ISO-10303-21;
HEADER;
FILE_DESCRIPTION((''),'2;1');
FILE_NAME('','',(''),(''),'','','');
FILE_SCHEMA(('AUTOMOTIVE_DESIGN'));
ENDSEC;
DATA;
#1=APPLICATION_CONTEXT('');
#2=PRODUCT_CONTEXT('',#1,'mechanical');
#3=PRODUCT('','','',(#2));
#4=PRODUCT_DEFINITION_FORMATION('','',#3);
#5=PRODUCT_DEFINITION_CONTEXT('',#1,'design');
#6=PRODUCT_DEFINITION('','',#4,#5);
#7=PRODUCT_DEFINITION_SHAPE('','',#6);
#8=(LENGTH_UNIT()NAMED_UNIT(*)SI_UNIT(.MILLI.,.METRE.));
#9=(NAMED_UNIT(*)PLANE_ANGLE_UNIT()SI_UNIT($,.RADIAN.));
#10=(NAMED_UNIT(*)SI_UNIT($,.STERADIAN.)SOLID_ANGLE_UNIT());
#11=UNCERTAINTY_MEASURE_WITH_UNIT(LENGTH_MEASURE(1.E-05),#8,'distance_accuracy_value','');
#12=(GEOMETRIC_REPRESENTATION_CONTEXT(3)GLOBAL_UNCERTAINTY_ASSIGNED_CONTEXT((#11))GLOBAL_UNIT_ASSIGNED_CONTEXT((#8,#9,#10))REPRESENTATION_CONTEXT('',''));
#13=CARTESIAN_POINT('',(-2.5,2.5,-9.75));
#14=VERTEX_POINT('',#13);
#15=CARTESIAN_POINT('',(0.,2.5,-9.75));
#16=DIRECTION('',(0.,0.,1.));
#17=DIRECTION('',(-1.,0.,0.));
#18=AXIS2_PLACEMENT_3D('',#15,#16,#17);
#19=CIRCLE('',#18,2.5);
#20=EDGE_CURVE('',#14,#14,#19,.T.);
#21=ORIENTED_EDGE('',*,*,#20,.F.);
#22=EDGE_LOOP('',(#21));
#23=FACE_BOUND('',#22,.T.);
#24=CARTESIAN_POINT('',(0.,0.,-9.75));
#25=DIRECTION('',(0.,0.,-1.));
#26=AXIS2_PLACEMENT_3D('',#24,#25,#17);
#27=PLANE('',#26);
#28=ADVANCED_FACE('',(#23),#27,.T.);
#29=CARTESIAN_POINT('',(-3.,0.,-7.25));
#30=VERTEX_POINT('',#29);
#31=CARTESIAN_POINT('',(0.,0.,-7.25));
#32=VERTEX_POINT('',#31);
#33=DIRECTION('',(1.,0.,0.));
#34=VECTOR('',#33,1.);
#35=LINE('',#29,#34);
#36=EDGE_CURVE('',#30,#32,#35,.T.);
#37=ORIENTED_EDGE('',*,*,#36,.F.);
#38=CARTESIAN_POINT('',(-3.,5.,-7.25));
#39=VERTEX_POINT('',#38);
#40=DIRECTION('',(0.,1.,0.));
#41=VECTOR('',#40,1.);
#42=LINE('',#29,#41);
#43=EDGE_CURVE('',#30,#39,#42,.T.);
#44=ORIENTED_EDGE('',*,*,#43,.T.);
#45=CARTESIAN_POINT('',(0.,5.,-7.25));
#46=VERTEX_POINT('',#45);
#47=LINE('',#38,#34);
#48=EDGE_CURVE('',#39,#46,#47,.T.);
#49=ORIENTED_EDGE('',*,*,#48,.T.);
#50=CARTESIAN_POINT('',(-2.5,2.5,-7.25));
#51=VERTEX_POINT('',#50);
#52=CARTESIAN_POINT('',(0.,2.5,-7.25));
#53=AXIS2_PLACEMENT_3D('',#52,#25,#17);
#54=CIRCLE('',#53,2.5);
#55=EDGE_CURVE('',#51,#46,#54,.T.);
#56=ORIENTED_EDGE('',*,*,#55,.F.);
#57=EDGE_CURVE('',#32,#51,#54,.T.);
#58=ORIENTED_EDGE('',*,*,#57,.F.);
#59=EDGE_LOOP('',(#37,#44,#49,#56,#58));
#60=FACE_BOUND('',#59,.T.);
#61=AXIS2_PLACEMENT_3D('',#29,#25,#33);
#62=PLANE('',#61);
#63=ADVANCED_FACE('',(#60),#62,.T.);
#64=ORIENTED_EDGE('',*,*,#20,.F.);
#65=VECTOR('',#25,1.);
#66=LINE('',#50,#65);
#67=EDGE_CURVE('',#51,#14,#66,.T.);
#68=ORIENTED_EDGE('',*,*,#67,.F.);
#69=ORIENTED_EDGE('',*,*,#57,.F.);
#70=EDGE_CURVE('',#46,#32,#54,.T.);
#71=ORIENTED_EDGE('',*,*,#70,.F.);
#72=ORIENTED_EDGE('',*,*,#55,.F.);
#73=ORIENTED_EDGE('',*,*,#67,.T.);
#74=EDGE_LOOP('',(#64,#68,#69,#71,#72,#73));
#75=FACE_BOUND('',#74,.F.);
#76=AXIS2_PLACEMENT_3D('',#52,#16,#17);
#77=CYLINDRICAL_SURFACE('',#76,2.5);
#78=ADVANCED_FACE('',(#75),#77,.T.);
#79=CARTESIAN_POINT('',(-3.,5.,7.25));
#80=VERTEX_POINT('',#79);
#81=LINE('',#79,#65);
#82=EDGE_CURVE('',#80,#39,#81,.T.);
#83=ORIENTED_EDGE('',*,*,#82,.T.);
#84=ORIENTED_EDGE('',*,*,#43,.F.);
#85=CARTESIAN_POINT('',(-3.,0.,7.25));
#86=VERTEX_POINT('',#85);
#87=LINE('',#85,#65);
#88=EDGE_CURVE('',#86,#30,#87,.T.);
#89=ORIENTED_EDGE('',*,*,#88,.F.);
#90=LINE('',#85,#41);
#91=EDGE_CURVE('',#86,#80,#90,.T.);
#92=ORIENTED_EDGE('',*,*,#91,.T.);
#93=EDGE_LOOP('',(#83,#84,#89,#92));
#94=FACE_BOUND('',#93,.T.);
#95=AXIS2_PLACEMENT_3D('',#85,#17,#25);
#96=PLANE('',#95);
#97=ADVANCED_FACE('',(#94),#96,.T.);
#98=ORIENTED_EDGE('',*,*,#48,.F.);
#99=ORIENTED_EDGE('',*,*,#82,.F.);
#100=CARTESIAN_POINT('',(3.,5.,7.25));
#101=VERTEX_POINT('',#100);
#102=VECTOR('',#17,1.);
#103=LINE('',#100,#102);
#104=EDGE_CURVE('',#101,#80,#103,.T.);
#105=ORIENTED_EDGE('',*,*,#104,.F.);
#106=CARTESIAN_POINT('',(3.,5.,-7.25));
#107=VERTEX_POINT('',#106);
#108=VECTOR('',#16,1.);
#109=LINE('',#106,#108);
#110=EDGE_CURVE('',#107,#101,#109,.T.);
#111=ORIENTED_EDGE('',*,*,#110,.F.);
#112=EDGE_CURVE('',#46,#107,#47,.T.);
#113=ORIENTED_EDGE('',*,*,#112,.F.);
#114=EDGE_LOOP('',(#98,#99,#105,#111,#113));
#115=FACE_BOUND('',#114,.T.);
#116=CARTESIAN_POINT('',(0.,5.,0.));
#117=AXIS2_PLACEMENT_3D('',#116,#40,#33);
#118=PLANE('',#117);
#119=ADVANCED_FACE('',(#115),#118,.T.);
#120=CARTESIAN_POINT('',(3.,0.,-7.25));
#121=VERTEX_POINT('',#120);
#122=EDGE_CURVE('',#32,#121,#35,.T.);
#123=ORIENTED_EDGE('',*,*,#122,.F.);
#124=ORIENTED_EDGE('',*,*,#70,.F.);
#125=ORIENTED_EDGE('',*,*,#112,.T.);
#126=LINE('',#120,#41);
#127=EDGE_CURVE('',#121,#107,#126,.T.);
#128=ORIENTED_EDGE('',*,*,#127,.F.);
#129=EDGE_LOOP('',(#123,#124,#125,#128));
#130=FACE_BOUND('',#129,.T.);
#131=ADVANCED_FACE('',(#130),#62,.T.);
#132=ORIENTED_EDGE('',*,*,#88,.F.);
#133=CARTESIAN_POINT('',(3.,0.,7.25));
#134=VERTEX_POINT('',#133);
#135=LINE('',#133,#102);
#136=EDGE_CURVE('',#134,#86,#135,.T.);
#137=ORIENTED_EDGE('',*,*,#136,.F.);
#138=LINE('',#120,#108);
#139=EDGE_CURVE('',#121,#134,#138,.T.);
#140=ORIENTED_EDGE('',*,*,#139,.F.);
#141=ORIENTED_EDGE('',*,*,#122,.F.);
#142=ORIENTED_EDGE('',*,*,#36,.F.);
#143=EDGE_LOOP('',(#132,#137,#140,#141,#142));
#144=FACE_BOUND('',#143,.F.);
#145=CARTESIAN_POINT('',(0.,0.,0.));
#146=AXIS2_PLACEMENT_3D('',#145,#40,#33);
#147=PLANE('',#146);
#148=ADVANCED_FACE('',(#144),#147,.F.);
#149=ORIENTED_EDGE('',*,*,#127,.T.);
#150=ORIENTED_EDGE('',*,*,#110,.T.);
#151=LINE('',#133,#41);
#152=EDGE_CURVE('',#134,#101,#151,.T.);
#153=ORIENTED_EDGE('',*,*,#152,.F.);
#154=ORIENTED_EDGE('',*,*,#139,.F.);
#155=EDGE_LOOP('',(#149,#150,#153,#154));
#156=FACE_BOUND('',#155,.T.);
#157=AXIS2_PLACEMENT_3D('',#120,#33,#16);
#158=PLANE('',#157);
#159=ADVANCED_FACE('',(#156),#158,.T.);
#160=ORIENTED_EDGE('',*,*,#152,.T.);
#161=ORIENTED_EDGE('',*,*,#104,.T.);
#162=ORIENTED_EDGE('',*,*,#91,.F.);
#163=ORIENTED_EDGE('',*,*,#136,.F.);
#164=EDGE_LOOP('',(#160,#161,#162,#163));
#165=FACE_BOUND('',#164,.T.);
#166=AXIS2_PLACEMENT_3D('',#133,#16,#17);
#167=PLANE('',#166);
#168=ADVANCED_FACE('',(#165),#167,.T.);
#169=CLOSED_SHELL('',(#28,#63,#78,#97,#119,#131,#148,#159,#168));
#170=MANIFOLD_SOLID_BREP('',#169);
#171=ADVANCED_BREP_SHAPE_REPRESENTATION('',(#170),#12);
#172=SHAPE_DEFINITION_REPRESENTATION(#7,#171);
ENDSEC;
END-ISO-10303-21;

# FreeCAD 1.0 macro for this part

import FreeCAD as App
import Part
import Sketcher
Q = App.Units.Quantity

doc = App.newDocument("Part")
body = doc.addObject("PartDesign::Body", "Body")

sketch1 = body.newObject("Sketcher::SketchObject", "Sketch")
sketch1.AttachmentSupport = (doc.getObject("XZ_Plane"), [""])
sketch1.MapMode = "FlatFace"
sketch1.addGeometry([
    Part.LineSegment(App.Vector(-3, 7, 0), App.Vector(3, 7, 0)),
    Part.LineSegment(App.Vector(3, 7, 0), App.Vector(3, -7, 0)),
    Part.LineSegment(App.Vector(3, -7, 0), App.Vector(-3, -7, 0)),
    Part.LineSegment(App.Vector(-3, -7, 0), App.Vector(-3, 7, 0)),
], False)
sketch1.addConstraint([
    Sketcher.Constraint("Coincident", 0, 2, 1, 1),
    Sketcher.Constraint("Coincident", 1, 2, 2, 1),
    Sketcher.Constraint("Coincident", 2, 2, 3, 1),
    Sketcher.Constraint("Coincident", 3, 2, 0, 1),
    Sketcher.Constraint("Horizontal", 0),
    Sketcher.Constraint("Vertical", 1),
    Sketcher.Constraint("Horizontal", 2),
    Sketcher.Constraint("Vertical", 3),
    Sketcher.Constraint("Symmetric", 0, 2, 2, 2, -1, 1),
    Sketcher.Constraint("DistanceX", 0, 1, 0, 2, Q("6 mm")),
    Sketcher.Constraint("DistanceY", 1, 2, 1, 1, Q("14.5 mm")),
])
pad1 = body.newObject("PartDesign::Pad", "Pad")
pad1.Profile = sketch1
pad1.Length = 5
pad1.Reversed = True

sketch2 = body.newObject("Sketcher::SketchObject", "Sketch001")
sketch2.AttachmentSupport = (doc.getObject("XY_Plane"), [""])
sketch2.MapMode = "FlatFace"
sketch2.AttachmentOffset = App.Placement(App.Vector(0, 0, -7.25), App.Rotation())
sketch2.addGeometry(Part.Circle(App.Vector(0, 2.5, 0), App.Vector(0, 0, 1), 2.5), False)
sketch2.addConstraint([
    Sketcher.Constraint("PointOnObject", 0, 3, -2),
    Sketcher.Constraint("Diameter", 0, Q("5 mm")),
    Sketcher.Constraint("DistanceY", -1, 1, 0, 3, Q("2.5 mm")),
])
pad2 = body.newObject("PartDesign::Pad", "Pad001")
pad2.Profile = sketch2
pad2.Length = 2.5
pad2.Reversed = True

doc.recompute()
